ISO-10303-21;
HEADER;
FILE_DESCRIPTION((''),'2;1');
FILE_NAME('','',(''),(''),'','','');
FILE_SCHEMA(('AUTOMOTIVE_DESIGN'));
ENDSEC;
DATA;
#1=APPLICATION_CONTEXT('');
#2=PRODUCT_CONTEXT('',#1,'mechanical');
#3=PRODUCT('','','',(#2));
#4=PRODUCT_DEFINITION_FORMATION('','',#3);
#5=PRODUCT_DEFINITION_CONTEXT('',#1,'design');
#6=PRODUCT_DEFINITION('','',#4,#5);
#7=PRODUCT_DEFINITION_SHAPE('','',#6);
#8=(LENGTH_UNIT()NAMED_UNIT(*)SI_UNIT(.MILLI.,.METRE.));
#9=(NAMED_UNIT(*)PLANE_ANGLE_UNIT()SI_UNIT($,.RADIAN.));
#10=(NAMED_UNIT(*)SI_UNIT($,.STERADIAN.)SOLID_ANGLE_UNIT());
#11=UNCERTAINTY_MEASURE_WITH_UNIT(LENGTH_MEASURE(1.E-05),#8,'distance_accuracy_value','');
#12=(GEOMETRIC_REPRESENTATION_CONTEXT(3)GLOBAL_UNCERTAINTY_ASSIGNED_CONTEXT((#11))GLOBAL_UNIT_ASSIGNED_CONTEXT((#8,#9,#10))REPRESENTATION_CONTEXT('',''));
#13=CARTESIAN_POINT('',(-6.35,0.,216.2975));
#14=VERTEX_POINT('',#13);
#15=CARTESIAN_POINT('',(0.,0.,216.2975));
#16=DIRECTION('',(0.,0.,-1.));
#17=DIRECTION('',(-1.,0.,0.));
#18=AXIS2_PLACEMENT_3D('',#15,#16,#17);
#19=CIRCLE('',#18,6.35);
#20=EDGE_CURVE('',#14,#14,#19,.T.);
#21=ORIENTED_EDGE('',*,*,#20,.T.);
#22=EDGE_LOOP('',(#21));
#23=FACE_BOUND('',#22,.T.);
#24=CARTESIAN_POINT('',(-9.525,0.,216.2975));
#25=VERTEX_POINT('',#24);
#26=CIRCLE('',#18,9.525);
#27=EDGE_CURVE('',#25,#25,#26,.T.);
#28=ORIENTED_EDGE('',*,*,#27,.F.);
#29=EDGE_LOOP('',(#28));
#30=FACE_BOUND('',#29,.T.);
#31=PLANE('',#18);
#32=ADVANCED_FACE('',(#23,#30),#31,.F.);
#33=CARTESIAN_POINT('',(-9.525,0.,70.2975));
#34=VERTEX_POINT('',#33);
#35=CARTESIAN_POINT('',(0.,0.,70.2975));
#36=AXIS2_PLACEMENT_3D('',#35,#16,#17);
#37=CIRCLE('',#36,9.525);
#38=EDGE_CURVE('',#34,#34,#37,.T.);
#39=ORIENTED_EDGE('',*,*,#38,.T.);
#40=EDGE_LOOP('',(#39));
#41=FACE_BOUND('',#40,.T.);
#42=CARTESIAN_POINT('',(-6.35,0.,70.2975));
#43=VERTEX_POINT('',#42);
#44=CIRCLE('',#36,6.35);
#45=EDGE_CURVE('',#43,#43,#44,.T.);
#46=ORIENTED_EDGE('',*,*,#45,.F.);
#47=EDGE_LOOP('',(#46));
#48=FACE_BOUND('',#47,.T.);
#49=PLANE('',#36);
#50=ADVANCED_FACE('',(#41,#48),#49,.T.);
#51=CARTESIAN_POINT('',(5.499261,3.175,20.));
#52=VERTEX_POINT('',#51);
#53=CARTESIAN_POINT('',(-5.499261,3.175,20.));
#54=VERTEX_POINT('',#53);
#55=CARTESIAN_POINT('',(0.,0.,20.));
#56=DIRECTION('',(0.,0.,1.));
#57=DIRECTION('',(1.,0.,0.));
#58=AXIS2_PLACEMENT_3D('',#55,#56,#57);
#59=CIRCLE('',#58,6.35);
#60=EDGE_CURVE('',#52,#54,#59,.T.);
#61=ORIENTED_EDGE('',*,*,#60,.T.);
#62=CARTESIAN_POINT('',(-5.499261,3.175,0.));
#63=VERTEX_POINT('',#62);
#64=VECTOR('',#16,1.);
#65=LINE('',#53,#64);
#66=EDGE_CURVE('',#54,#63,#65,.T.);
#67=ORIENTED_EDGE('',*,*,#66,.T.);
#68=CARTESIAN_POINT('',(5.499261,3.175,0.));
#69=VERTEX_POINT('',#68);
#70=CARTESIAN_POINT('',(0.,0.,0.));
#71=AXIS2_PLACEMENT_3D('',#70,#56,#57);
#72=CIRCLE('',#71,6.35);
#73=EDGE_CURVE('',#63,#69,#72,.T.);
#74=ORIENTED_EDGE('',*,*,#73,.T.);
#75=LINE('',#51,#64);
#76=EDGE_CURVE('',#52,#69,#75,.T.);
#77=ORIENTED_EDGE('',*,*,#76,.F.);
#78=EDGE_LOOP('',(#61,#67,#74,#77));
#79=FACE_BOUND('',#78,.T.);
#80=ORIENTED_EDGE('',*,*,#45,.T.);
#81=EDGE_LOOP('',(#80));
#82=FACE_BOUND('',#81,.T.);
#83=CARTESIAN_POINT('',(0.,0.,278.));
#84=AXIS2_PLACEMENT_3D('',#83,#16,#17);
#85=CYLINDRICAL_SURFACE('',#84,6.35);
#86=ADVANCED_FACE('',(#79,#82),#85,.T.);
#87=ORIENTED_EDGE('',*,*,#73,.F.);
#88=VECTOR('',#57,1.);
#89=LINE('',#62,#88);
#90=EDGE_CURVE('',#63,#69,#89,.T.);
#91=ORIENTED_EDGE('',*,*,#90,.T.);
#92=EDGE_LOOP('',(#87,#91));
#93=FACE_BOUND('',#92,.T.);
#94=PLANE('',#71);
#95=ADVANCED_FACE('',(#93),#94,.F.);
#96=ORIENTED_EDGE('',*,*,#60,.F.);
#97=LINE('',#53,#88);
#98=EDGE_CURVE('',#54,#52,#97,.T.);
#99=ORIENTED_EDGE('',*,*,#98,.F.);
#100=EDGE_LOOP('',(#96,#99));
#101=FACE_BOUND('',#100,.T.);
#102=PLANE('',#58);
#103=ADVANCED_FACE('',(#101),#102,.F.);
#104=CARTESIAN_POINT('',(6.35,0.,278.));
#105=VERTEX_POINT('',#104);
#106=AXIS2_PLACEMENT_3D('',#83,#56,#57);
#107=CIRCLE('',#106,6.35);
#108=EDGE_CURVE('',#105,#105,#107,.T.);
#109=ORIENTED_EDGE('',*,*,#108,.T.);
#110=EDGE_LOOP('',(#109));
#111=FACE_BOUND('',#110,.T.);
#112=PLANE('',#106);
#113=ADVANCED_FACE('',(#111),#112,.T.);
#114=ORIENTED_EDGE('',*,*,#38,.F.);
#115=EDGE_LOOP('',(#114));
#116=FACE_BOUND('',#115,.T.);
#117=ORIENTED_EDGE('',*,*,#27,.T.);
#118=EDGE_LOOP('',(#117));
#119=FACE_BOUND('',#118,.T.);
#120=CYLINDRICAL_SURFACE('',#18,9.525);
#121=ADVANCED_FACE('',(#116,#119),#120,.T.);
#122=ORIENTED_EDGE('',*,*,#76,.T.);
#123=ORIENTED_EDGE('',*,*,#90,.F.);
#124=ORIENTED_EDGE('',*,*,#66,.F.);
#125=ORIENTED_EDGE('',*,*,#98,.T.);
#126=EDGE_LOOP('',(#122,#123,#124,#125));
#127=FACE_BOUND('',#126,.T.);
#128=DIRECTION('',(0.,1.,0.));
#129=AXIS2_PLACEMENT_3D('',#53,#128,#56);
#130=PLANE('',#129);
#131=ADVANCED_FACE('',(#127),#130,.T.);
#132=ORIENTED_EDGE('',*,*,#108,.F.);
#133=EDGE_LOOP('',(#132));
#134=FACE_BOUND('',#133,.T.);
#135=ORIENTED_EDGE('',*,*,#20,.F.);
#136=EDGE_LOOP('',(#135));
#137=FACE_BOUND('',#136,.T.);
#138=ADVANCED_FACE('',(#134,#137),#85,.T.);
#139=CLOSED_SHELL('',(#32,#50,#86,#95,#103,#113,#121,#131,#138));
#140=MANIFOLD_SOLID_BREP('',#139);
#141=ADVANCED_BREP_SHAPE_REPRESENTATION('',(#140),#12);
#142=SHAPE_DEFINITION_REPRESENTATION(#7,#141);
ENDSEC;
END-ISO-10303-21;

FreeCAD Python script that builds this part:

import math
import FreeCAD as App
import Part
import Sketcher

V = App.Vector

doc = App.newDocument("Part")
body = doc.addObject("PartDesign::Body", "Body")

# Sketch on XY plane
sketch1 = body.newObject("Sketcher::SketchObject", "Sketch")
sketch1.AttachmentSupport = (doc.getObject("XY_Plane"), [""])
sketch1.MapMode = "FlatFace"
sketch1.addGeometry(Part.Circle(V(0, 0, 0), V(0, 0, 1), 6), False)
sketch1.addConstraint([
    Sketcher.Constraint("Coincident", 0, 3, -1, 1),
    Sketcher.Constraint("Diameter", 0, 12.7),
])
pad1 = body.newObject("PartDesign::Pad", "Pad")
pad1.Profile = sketch1
pad1.Length = 278

# Sketch on XY plane
sketch2 = body.newObject("Sketcher::SketchObject", "Sketch001")
sketch2.AttachmentSupport = (doc.getObject("XY_Plane"), [""])
sketch2.MapMode = "FlatFace"
sketch2.AttachmentOffset = App.Placement(V(0, 0, 70.2975), App.Rotation())
sketch2.addGeometry(Part.Circle(V(0, 0, 0), V(0, 0, 1), 10), False)
sketch2.addConstraint([
    Sketcher.Constraint("Coincident", 0, 3, -1, 1),
    Sketcher.Constraint("Diameter", 0, 19.05),
])
pad2 = body.newObject("PartDesign::Pad", "Pad001")
pad2.Profile = sketch2
pad2.Length = 146

# Sketch on XY plane
sketch3 = body.newObject("Sketcher::SketchObject", "Sketch002")
sketch3.AttachmentSupport = (doc.getObject("XY_Plane"), [""])
sketch3.MapMode = "FlatFace"
sketch3.addGeometry([
    Part.LineSegment(V(-5, 3, 0), V(5, 3, 0)),
    Part.ArcOfCircle(Part.Circle(V(0, 0, 0), V(0, 0, 1), 6), math.radians(30), math.radians(150)),
], False)
sketch3.addConstraint([
    Sketcher.Constraint("Coincident", 0, 1, 1, 2),
    Sketcher.Constraint("Coincident", 1, 1, 0, 2),
    Sketcher.Constraint("Horizontal", 0),
    Sketcher.Constraint("Coincident", 1, 3, -1, 1),
    Sketcher.Constraint("Radius", 1, 6.35),
    Sketcher.Constraint("DistanceY", -1, 1, 0, 1, 3.175),
])
pocket1 = body.newObject("PartDesign::Pocket", "Pocket")
pocket1.Profile = sketch3
pocket1.Length = 20
pocket1.Reversed = True

doc.recompute()
